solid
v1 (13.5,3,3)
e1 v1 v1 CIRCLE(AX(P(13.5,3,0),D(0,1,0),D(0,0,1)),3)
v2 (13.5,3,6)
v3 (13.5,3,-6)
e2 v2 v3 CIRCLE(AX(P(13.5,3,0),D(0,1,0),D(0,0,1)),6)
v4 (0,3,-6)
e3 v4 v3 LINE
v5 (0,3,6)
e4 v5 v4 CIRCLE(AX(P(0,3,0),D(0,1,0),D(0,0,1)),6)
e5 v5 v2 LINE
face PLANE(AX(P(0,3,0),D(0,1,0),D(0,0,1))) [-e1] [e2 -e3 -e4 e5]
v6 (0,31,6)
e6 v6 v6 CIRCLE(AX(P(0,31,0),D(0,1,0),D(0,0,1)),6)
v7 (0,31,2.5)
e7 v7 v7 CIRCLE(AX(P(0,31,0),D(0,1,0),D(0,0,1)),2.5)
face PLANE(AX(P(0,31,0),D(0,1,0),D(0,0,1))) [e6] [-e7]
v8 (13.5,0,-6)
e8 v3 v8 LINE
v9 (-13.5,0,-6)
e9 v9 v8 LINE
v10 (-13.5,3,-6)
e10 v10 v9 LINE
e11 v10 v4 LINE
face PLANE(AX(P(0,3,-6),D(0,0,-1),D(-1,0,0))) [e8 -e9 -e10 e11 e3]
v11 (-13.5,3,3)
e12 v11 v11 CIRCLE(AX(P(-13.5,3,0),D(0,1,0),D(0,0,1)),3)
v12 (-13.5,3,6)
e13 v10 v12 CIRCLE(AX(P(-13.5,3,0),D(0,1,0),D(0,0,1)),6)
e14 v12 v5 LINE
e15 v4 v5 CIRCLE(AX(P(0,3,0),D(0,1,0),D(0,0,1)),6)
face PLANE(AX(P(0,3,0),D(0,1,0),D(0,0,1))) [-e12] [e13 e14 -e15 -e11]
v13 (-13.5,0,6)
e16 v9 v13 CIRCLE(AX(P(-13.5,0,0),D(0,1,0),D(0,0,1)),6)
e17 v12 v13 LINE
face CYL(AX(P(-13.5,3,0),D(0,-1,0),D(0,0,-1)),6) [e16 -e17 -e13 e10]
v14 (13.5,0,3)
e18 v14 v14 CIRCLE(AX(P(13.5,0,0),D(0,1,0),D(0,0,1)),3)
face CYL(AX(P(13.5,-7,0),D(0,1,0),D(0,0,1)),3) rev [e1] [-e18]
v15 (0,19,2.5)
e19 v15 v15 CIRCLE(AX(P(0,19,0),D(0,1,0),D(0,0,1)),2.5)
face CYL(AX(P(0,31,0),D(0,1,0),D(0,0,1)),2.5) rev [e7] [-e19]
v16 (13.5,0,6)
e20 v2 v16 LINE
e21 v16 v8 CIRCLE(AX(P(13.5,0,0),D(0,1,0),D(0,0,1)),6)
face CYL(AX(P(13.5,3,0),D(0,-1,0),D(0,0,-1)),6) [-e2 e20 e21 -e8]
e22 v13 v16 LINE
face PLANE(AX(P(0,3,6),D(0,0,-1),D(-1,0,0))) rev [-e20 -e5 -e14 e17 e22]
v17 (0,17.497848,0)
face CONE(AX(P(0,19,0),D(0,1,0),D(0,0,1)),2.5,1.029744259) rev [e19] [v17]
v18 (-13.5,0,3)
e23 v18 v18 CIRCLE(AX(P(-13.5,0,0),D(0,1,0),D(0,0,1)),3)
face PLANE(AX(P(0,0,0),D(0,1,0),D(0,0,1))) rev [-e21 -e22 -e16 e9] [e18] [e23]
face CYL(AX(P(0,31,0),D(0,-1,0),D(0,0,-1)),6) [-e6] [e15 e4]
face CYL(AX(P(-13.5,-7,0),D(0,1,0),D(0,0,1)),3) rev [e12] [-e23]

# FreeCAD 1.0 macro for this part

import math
import FreeCAD as App
import Part
import Sketcher

doc = App.newDocument("Part")
body = doc.addObject("PartDesign::Body", "Body")

# Sketch on XZ plane
sketch1 = body.newObject("Sketcher::SketchObject", "Sketch")
sketch1.AttachmentSupport = (doc.getObject("XZ_Plane"), [""])
sketch1.MapMode = "FlatFace"
sketch1.addGeometry(Part.ArcOfCircle(Part.Circle(App.Vector(-14, 0, 0), App.Vector(0, 0, 1), 6), math.radians(90), math.radians(270)), False)
sketch1.addGeometry(Part.LineSegment(App.Vector(-14, 6, 0), App.Vector(14, 6, 0)), False)
sketch1.addGeometry(Part.ArcOfCircle(Part.Circle(App.Vector(14, 0, 0), App.Vector(0, 0, 1), 6), math.radians(-90), math.radians(90)), False)
sketch1.addGeometry(Part.LineSegment(App.Vector(14, -6, 0), App.Vector(-14, -6, 0)), False)
sketch1.addConstraint(Sketcher.Constraint("Tangent", 0, 1, 1, 1))
sketch1.addConstraint(Sketcher.Constraint("Tangent", 1, 2, 2, 2))
sketch1.addConstraint(Sketcher.Constraint("Tangent", 2, 1, 3, 1))
sketch1.addConstraint(Sketcher.Constraint("Tangent", 3, 2, 0, 2))
sketch1.addConstraint(Sketcher.Constraint("Horizontal", 1))
sketch1.addConstraint(Sketcher.Constraint("Horizontal", 3))
sketch1.addConstraint(Sketcher.Constraint("Symmetric", 0, 3, 2, 3, -1, 1))
sketch1.addConstraint(Sketcher.Constraint("Radius", 0, 6.0))
sketch1.addConstraint(Sketcher.Constraint("DistanceX", 1, 1, 1, 2, 27.0))
pad1 = body.newObject("PartDesign::Pad", "Pad")
pad1.Profile = sketch1
pad1.Length = 3
pad1.Reversed = True

# Sketch on XZ plane
sketch2 = body.newObject("Sketcher::SketchObject", "Sketch001")
sketch2.AttachmentSupport = (doc.getObject("XZ_Plane"), [""])
sketch2.MapMode = "FlatFace"
sketch2.AttachmentOffset = App.Placement(App.Vector(0, 0, -3), App.Rotation())
sketch2.addGeometry(Part.Circle(App.Vector(0, 0, 0), App.Vector(0, 0, 1), 6), False)
sketch2.addConstraint(Sketcher.Constraint("Coincident", 0, 3, -1, 1))
sketch2.addConstraint(Sketcher.Constraint("Diameter", 0, 12.0))
pad2 = body.newObject("PartDesign::Pad", "Pad001")
pad2.Profile = sketch2
pad2.Length = 28
pad2.Reversed = True

# Sketch on XZ plane
sketch3 = body.newObject("Sketcher::SketchObject", "Sketch002")
sketch3.AttachmentSupport = (doc.getObject("XZ_Plane"), [""])
sketch3.MapMode = "FlatFace"
sketch3.AttachmentOffset = App.Placement(App.Vector(0, 0, -31), App.Rotation())
sketch3.addGeometry(Part.Circle(App.Vector(0, 0, 0), App.Vector(0, 0, 1), 2.5), False)
sketch3.addConstraint(Sketcher.Constraint("Coincident", 0, 3, -1, 1))
sketch3.addConstraint(Sketcher.Constraint("Diameter", 0, 5.0))
doc.recompute()
hole = body.newObject("PartDesign::Hole", "Hole")
hole.Profile = sketch3
hole.ThreadType = "None"
hole.Diameter = 5
hole.DepthType = "Dimension"
hole.Depth = 12
hole.DrillPoint = "Angled"
hole.DrillPointAngle = 118
hole.Reversed = True

# Sketch on XZ plane
sketch4 = body.newObject("Sketcher::SketchObject", "Sketch003")
sketch4.AttachmentSupport = (doc.getObject("XZ_Plane"), [""])
sketch4.MapMode = "FlatFace"
sketch4.AttachmentOffset = App.Placement(App.Vector(0, 0, -3), App.Rotation())
sketch4.addGeometry(Part.Circle(App.Vector(-13.5, 0, 0), App.Vector(0, 0, 1), 3), False)
sketch4.addGeometry(Part.Circle(App.Vector(13.5, 0, 0), App.Vector(0, 0, 1), 3), False)
sketch4.addConstraint(Sketcher.Constraint("Equal", 0, 1))
sketch4.addConstraint(Sketcher.Constraint("Symmetric", 0, 3, 1, 3, -1, 1))
sketch4.addConstraint(Sketcher.Constraint("PointOnObject", 0, 3, -1))
sketch4.addConstraint(Sketcher.Constraint("Diameter", 0, 6.0))
sketch4.addConstraint(Sketcher.Constraint("DistanceX", 0, 3, 1, 3, 27.0))
pocket1 = body.newObject("PartDesign::Pocket", "Pocket")
pocket1.Profile = sketch4
pocket1.Length = 10
pocket1.Reversed = True

doc.recompute()
